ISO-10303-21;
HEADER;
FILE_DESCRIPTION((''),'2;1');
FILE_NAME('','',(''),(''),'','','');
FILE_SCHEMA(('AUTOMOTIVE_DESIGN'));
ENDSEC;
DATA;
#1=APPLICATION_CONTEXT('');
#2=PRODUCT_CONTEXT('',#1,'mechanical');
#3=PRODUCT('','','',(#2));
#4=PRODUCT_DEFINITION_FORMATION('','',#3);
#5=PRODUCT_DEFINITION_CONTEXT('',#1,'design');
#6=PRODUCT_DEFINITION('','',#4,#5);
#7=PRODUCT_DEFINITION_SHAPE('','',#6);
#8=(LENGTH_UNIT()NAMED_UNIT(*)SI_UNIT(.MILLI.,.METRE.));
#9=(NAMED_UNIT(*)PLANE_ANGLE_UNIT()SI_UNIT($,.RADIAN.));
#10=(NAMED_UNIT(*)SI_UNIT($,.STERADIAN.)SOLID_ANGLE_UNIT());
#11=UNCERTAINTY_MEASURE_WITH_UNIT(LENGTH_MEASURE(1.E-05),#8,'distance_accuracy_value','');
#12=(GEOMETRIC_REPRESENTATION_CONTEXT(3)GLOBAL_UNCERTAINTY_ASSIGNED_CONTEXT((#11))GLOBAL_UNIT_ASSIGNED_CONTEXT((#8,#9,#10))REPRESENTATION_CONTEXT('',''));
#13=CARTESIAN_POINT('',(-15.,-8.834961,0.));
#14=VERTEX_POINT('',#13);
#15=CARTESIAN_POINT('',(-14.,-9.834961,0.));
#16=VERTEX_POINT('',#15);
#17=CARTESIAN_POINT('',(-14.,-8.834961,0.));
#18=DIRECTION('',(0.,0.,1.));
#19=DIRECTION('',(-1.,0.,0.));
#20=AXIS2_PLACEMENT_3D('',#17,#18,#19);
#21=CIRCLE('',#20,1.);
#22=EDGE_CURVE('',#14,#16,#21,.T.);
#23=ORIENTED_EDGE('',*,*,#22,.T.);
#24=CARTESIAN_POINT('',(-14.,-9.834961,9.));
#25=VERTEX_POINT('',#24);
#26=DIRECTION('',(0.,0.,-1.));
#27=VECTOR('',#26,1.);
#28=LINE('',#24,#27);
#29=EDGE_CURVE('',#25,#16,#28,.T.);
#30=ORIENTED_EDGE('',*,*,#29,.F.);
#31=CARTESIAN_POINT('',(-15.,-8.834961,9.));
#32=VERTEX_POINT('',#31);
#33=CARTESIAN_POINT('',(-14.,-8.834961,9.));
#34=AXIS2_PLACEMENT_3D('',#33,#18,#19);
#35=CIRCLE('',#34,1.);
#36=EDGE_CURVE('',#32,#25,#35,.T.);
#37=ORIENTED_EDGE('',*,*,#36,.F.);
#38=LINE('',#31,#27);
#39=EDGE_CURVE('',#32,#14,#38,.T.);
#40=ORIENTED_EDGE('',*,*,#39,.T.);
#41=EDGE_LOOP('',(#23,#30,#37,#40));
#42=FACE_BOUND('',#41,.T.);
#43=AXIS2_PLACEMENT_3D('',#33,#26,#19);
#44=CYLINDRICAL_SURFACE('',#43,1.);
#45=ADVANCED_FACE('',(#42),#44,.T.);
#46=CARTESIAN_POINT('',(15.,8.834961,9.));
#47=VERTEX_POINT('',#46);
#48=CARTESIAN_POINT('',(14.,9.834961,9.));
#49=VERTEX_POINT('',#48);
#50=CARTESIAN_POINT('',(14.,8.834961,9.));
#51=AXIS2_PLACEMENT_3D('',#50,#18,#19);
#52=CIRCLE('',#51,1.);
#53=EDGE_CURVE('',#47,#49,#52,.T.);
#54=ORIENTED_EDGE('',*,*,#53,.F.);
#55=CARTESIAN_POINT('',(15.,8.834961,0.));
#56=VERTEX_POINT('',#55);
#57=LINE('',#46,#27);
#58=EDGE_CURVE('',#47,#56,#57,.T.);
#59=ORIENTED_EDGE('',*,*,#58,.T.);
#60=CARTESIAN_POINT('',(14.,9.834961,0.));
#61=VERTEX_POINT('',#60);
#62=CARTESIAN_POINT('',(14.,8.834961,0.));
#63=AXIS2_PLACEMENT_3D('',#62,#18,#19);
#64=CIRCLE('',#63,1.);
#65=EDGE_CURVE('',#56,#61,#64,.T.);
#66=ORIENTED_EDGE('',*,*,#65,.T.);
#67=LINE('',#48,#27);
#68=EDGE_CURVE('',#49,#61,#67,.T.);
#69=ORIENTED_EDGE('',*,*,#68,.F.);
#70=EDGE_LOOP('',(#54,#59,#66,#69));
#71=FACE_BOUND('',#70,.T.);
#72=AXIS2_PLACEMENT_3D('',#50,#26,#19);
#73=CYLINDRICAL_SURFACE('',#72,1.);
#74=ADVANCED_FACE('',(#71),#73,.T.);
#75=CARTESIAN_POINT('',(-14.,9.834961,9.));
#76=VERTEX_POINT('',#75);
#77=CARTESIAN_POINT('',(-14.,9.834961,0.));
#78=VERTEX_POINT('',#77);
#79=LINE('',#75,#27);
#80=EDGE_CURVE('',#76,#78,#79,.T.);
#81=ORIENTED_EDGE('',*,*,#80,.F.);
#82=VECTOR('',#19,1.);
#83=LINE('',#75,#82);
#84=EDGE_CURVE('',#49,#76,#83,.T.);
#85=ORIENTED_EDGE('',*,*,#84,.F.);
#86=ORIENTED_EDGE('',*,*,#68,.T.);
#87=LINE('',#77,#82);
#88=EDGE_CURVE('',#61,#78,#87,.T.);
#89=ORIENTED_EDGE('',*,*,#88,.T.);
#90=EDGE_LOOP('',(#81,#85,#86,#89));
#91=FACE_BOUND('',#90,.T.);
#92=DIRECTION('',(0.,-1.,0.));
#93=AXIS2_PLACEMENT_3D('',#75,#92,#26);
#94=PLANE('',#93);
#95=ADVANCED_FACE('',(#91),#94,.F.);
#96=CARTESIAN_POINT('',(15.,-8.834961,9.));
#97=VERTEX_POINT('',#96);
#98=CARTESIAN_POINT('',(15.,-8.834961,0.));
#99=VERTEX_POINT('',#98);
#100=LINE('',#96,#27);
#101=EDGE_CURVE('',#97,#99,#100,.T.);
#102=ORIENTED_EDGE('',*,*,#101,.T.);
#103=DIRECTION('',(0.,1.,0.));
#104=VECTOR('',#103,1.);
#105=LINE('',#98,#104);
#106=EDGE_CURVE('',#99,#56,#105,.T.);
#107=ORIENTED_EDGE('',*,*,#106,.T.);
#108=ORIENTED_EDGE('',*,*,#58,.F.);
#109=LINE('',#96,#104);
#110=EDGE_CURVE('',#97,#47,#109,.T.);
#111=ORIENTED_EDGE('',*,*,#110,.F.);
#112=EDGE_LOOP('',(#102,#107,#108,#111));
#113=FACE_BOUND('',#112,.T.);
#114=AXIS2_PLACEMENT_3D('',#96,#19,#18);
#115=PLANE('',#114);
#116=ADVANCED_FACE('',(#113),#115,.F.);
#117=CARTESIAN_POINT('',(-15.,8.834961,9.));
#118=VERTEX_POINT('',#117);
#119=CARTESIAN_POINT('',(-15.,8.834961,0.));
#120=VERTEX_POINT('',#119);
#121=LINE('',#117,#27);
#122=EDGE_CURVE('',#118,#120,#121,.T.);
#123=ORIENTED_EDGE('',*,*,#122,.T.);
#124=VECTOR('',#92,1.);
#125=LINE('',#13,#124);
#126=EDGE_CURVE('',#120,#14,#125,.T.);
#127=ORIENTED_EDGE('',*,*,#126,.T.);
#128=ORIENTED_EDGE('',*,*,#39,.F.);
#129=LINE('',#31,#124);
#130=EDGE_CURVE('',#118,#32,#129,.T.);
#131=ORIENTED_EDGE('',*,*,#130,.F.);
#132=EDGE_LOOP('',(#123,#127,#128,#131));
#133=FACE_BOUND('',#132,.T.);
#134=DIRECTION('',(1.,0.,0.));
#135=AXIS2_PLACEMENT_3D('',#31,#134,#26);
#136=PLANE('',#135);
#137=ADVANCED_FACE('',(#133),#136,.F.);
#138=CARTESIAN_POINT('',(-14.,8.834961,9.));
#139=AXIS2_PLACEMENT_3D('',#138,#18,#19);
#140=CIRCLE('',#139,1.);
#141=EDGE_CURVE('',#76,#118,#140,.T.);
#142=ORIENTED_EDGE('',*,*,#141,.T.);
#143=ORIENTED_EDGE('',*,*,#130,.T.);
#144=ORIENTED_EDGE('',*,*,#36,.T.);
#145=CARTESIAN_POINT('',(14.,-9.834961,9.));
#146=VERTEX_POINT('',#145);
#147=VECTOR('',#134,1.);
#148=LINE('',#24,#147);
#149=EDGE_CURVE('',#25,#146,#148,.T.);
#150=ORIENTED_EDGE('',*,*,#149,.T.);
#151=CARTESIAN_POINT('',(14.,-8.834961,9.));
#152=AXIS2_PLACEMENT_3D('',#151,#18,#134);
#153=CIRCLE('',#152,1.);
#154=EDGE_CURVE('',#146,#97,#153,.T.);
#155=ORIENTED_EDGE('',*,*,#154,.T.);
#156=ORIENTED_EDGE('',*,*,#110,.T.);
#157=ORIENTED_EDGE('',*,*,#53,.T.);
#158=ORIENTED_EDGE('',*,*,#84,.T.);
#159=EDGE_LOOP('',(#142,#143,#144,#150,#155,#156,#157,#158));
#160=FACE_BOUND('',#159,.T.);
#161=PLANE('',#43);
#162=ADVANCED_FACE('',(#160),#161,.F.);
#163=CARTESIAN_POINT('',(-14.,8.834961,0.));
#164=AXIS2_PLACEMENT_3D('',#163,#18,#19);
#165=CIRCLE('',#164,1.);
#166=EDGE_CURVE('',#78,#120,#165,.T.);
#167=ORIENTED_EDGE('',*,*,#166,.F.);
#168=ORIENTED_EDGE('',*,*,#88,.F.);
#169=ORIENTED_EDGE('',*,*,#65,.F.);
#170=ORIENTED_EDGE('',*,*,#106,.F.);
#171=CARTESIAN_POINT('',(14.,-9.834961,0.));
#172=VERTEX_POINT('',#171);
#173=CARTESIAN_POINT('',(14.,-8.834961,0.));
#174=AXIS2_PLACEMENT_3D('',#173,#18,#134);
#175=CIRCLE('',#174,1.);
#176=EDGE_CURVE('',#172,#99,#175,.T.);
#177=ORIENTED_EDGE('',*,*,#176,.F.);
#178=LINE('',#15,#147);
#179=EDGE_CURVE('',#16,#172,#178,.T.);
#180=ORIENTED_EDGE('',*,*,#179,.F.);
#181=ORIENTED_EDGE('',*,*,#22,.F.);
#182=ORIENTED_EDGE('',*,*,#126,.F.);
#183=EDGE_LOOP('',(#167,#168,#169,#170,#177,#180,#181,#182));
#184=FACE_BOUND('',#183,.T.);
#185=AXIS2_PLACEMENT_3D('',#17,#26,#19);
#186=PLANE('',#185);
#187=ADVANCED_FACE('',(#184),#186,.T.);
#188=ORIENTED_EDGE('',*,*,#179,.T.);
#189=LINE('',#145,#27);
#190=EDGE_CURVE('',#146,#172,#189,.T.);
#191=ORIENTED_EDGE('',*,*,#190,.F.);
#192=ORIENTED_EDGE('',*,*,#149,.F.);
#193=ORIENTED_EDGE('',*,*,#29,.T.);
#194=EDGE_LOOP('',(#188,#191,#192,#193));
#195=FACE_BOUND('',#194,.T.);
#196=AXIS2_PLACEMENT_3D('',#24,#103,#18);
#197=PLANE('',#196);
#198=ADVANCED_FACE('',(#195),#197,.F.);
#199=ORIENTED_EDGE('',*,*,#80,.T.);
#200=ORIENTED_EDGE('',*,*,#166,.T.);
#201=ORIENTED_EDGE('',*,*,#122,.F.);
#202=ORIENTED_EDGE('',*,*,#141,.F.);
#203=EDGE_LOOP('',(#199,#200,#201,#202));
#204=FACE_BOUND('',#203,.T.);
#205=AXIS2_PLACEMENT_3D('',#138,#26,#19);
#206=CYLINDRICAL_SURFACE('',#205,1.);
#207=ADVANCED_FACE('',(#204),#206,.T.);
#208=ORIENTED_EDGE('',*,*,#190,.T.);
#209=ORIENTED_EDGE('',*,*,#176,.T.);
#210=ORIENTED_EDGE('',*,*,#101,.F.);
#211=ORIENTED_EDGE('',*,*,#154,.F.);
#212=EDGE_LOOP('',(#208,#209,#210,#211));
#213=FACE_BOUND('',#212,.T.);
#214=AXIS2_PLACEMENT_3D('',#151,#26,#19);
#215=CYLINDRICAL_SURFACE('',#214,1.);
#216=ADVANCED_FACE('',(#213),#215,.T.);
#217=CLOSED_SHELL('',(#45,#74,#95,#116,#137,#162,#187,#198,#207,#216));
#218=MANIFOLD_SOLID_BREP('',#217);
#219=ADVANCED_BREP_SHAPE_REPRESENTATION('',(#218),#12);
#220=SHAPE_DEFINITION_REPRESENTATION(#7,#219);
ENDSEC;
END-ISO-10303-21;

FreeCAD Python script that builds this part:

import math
import FreeCAD as App
import Part
import Sketcher
from FreeCAD import Vector

doc = App.newDocument("Part")
body = doc.addObject("PartDesign::Body", "Body")

sketch1 = body.newObject("Sketcher::SketchObject", "Sketch")
sketch1.AttachmentSupport = (doc.getObject("XY_Plane"), [""])
sketch1.MapMode = "FlatFace"
sketch1.addGeometry(Part.LineSegment(Vector(-14, -9.834961, 0), Vector(14, -9.834961, 0)), False)
sketch1.addGeometry(Part.ArcOfCircle(Part.Circle(Vector(14, -8.834961, 0), Vector(0, 0, 1), 1), math.radians(-90), math.radians(0)), False)
sketch1.addGeometry(Part.LineSegment(Vector(15, -8.834961, 0), Vector(15, 8.834961, 0)), False)
sketch1.addGeometry(Part.ArcOfCircle(Part.Circle(Vector(14, 8.834961, 0), Vector(0, 0, 1), 1), math.radians(0), math.radians(90)), False)
sketch1.addGeometry(Part.LineSegment(Vector(14, 9.834961, 0), Vector(-14, 9.834961, 0)), False)
sketch1.addGeometry(Part.ArcOfCircle(Part.Circle(Vector(-14, 8.834961, 0), Vector(0, 0, 1), 1), math.radians(90), math.radians(180)), False)
sketch1.addGeometry(Part.LineSegment(Vector(-15, 8.834961, 0), Vector(-15, -8.834961, 0)), False)
sketch1.addGeometry(Part.ArcOfCircle(Part.Circle(Vector(-14, -8.834961, 0), Vector(0, 0, 1), 1), math.radians(180), math.radians(270)), False)
sketch1.addConstraint(Sketcher.Constraint("Tangent", 0, 2, 1, 1))
sketch1.addConstraint(Sketcher.Constraint("Tangent", 1, 2, 2, 1))
sketch1.addConstraint(Sketcher.Constraint("Tangent", 2, 2, 3, 1))
sketch1.addConstraint(Sketcher.Constraint("Tangent", 3, 2, 4, 1))
sketch1.addConstraint(Sketcher.Constraint("Tangent", 4, 2, 5, 1))
sketch1.addConstraint(Sketcher.Constraint("Tangent", 5, 2, 6, 1))
sketch1.addConstraint(Sketcher.Constraint("Tangent", 6, 2, 7, 1))
sketch1.addConstraint(Sketcher.Constraint("Tangent", 7, 2, 0, 1))
sketch1.addConstraint(Sketcher.Constraint("Horizontal", 0))
sketch1.addConstraint(Sketcher.Constraint("Vertical", 2))
sketch1.addConstraint(Sketcher.Constraint("Horizontal", 4))
sketch1.addConstraint(Sketcher.Constraint("Vertical", 6))
sketch1.addConstraint(Sketcher.Constraint("Equal", 1, 3))
sketch1.addConstraint(Sketcher.Constraint("Equal", 3, 5))
sketch1.addConstraint(Sketcher.Constraint("Equal", 5, 7))
sketch1.addConstraint(Sketcher.Constraint("Symmetric", 1, 3, 5, 3, -1, 1))
sketch1.addConstraint(Sketcher.Constraint("Radius", 1, 1.0))
sketch1.addConstraint(Sketcher.Constraint("DistanceX", 0, 1, 0, 2, 28.0))
sketch1.addConstraint(Sketcher.Constraint("DistanceY", 2, 1, 2, 2, 17.669923))
pad1 = body.newObject("PartDesign::Pad", "Pad")
pad1.Profile = sketch1
pad1.Length = 9

doc.recompute()
